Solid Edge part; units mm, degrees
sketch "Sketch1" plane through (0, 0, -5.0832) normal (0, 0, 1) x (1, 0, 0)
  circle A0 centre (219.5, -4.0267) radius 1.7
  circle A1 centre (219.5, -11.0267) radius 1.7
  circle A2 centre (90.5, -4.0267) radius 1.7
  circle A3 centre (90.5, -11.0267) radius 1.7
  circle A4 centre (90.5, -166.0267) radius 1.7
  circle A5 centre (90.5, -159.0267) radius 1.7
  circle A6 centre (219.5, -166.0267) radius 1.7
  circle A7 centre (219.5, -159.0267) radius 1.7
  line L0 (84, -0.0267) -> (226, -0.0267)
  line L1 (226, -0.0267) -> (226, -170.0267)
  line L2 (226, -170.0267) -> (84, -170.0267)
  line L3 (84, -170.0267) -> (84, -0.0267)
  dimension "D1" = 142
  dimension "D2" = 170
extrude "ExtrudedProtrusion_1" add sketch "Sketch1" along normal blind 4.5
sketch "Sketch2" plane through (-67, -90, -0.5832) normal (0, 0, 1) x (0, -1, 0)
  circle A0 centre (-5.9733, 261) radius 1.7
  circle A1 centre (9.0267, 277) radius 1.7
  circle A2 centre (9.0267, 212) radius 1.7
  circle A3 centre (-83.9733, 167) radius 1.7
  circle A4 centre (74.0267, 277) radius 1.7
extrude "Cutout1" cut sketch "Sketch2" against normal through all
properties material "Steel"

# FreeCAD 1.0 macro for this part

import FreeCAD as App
import Part
import Sketcher

V = App.Vector
Q = App.Units.Quantity

doc = App.newDocument("Part")
body = doc.addObject("PartDesign::Body", "Body")

sketch1 = body.newObject("Sketcher::SketchObject", "Sketch")
sketch1.AttachmentSupport = (doc.getObject("XY_Plane"), [""])
sketch1.MapMode = "FlatFace"
sketch1.AttachmentOffset = App.Placement(V(0, 0, -5.0832), App.Rotation())
sketch1.addGeometry(Part.LineSegment(V(226, 0, 0), V(84, 0, 0)), False)
sketch1.addGeometry(Part.LineSegment(V(84, 0, 0), V(84, -170, 0)), False)
sketch1.addGeometry(Part.LineSegment(V(84, -170, 0), V(226, -170, 0)), False)
sketch1.addGeometry(Part.LineSegment(V(226, -170, 0), V(226, 0, 0)), False)
sketch1.addGeometry(Part.Circle(V(90.5, -166, 0), V(0, 0, 1), 1.7), False)
sketch1.addGeometry(Part.Circle(V(90.5, -159, 0), V(0, 0, 1), 1.7), False)
sketch1.addGeometry(Part.Circle(V(219.5, -166, 0), V(0, 0, 1), 1.7), False)
sketch1.addGeometry(Part.Circle(V(219.5, -159, 0), V(0, 0, 1), 1.7), False)
sketch1.addGeometry(Part.Circle(V(90.5, -11, 0), V(0, 0, 1), 1.7), False)
sketch1.addGeometry(Part.Circle(V(90.5, -4, 0), V(0, 0, 1), 1.7), False)
sketch1.addGeometry(Part.Circle(V(219.5, -11, 0), V(0, 0, 1), 1.7), False)
sketch1.addGeometry(Part.Circle(V(219.5, -4, 0), V(0, 0, 1), 1.7), False)
sketch1.addConstraint(Sketcher.Constraint("Coincident", 0, 2, 1, 1))
sketch1.addConstraint(Sketcher.Constraint("Coincident", 1, 2, 2, 1))
sketch1.addConstraint(Sketcher.Constraint("Coincident", 2, 2, 3, 1))
sketch1.addConstraint(Sketcher.Constraint("Coincident", 3, 2, 0, 1))
sketch1.addConstraint(Sketcher.Constraint("Horizontal", 0))
sketch1.addConstraint(Sketcher.Constraint("Vertical", 1))
sketch1.addConstraint(Sketcher.Constraint("Horizontal", 2))
sketch1.addConstraint(Sketcher.Constraint("Vertical", 3))
sketch1.addConstraint(Sketcher.Constraint("Equal", 4, 5))
sketch1.addConstraint(Sketcher.Constraint("Equal", 5, 6))
sketch1.addConstraint(Sketcher.Constraint("Equal", 6, 7))
sketch1.addConstraint(Sketcher.Constraint("Equal", 7, 8))
sketch1.addConstraint(Sketcher.Constraint("Equal", 8, 9))
sketch1.addConstraint(Sketcher.Constraint("Equal", 9, 10))
sketch1.addConstraint(Sketcher.Constraint("Equal", 10, 11))
sketch1.addConstraint(Sketcher.Constraint("Horizontal", 4, 3, 6, 3))
sketch1.addConstraint(Sketcher.Constraint("Horizontal", 5, 3, 7, 3))
sketch1.addConstraint(Sketcher.Constraint("Horizontal", 8, 3, 10, 3))
sketch1.addConstraint(Sketcher.Constraint("Horizontal", 9, 3, 11, 3))
sketch1.addConstraint(Sketcher.Constraint("Vertical", 4, 3, 5, 3))
sketch1.addConstraint(Sketcher.Constraint("Vertical", 6, 3, 7, 3))
sketch1.addConstraint(Sketcher.Constraint("Vertical", 5, 3, 8, 3))
sketch1.addConstraint(Sketcher.Constraint("Vertical", 8, 3, 9, 3))
sketch1.addConstraint(Sketcher.Constraint("Vertical", 7, 3, 10, 3))
sketch1.addConstraint(Sketcher.Constraint("Vertical", 10, 3, 11, 3))
sketch1.addConstraint(Sketcher.Constraint("DistanceX", -1, 1, 0, 2, Q("84 mm")))
sketch1.addConstraint(Sketcher.Constraint("Diameter", 4, Q("3.4 mm")))
sketch1.addConstraint(Sketcher.Constraint("DistanceX", 0, 2, 0, 1, Q("142 mm")))
sketch1.addConstraint(Sketcher.Constraint("DistanceY", 1, 2, 1, 1, Q("170 mm")))
sketch1.addConstraint(Sketcher.Constraint("DistanceY", 4, 3, 5, 3, Q("7 mm")))
sketch1.addConstraint(Sketcher.Constraint("DistanceX", 4, 3, 6, 3, Q("129 mm")))
sketch1.addConstraint(Sketcher.Constraint("DistanceY", 5, 3, 8, 3, Q("148 mm")))
sketch1.addConstraint(Sketcher.Constraint("DistanceY", 8, 3, 9, 3, Q("7 mm")))
sketch1.addConstraint(Sketcher.Constraint("DistanceY", 9, 3, 0, 2, Q("4 mm")))
sketch1.addConstraint(Sketcher.Constraint("DistanceX", -1, 1, 4, 3, Q("90.5 mm")))
sketch1.addConstraint(Sketcher.Constraint("DistanceY", 4, 3, -1, 1, Q("166.0267 mm")))
pad1 = body.newObject("PartDesign::Pad", "Pad")
pad1.Profile = sketch1
pad1.Length = 4.5

sketch2 = body.newObject("Sketcher::SketchObject", "Sketch001")
sketch2.AttachmentSupport = (doc.getObject("XY_Plane"), [""])
sketch2.MapMode = "FlatFace"
sketch2.AttachmentOffset = App.Placement(V(0, 0, -0.5832), App.Rotation())
sketch2.addGeometry(Part.Circle(V(194, -84, 0), V(0, 0, 1), 1.7), False)
sketch2.addGeometry(Part.Circle(V(210, -99, 0), V(0, 0, 1), 1.7), False)
sketch2.addGeometry(Part.Circle(V(145, -99, 0), V(0, 0, 1), 1.7), False)
sketch2.addGeometry(Part.Circle(V(100, -6, 0), V(0, 0, 1), 1.7), False)
sketch2.addGeometry(Part.Circle(V(210, -164, 0), V(0, 0, 1), 1.7), False)
sketch2.addConstraint(Sketcher.Constraint("Equal", 0, 1))
sketch2.addConstraint(Sketcher.Constraint("Equal", 1, 2))
sketch2.addConstraint(Sketcher.Constraint("Equal", 2, 3))
sketch2.addConstraint(Sketcher.Constraint("Equal", 3, 4))
sketch2.addConstraint(Sketcher.Constraint("Horizontal", 1, 3, 2, 3))
sketch2.addConstraint(Sketcher.Constraint("Vertical", 1, 3, 4, 3))
sketch2.addConstraint(Sketcher.Constraint("Diameter", 0, Q("3.4 mm")))
sketch2.addConstraint(Sketcher.Constraint("DistanceX", -1, 1, 0, 3, Q("194 mm")))
sketch2.addConstraint(Sketcher.Constraint("DistanceX", -1, 1, 1, 3, Q("210 mm")))
sketch2.addConstraint(Sketcher.Constraint("DistanceX", -1, 1, 2, 3, Q("145 mm")))
sketch2.addConstraint(Sketcher.Constraint("DistanceX", -1, 1, 3, 3, Q("100 mm")))
sketch2.addConstraint(Sketcher.Constraint("DistanceY", 1, 3, 0, 3, Q("15 mm")))
sketch2.addConstraint(Sketcher.Constraint("DistanceY", 2, 3, 3, 3, Q("93 mm")))
sketch2.addConstraint(Sketcher.Constraint("DistanceY", 4, 3, 1, 3, Q("65 mm")))
sketch2.addConstraint(Sketcher.Constraint("DistanceY", 0, 3, -1, 1, Q("84.0267 mm")))
pocket1 = body.newObject("PartDesign::Pocket", "Pocket")
pocket1.Profile = sketch2
pocket1.Type = "ThroughAll"

doc.recompute()
